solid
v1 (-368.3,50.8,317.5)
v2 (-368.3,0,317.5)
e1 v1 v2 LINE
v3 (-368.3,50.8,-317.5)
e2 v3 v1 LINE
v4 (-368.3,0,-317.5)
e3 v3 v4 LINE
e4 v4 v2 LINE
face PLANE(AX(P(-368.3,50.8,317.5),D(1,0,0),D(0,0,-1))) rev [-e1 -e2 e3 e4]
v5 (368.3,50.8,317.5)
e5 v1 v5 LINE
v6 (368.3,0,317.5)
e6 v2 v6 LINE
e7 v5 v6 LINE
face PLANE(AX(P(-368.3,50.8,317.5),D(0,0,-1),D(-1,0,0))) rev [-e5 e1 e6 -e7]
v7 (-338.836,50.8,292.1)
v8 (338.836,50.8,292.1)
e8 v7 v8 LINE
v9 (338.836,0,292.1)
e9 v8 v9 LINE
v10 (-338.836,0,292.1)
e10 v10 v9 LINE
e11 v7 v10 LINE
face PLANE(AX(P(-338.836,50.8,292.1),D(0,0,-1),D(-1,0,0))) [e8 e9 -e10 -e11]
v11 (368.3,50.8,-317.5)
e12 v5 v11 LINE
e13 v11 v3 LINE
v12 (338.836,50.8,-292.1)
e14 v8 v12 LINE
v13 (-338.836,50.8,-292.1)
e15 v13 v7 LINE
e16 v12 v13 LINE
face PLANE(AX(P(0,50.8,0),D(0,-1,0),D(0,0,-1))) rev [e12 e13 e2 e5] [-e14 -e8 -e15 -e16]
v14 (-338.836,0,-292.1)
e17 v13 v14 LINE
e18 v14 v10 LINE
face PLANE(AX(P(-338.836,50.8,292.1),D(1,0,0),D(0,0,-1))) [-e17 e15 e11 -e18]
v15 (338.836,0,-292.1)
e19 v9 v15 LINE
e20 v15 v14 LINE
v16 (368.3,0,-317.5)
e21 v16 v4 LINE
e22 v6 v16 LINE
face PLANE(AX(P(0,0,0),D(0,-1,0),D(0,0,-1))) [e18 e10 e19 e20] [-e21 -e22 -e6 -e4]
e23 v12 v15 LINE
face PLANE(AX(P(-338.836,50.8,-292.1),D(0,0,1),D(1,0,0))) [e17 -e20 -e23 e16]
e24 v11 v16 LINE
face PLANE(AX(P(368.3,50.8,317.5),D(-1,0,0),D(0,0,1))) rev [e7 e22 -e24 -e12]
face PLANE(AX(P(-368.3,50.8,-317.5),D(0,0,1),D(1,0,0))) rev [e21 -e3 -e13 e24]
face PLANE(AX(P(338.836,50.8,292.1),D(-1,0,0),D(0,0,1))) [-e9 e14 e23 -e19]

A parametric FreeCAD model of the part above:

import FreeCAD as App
import Part
import Sketcher

V = App.Vector
Q = App.Units.Quantity

doc = App.newDocument("Part")
body = doc.addObject("PartDesign::Body", "Body")

# Sketch on XZ plane
sketch1 = body.newObject("Sketcher::SketchObject", "Sketch")
sketch1.AttachmentSupport = (doc.getObject("XZ_Plane"), [""])
sketch1.MapMode = "FlatFace"
sketch1.addGeometry([
    Part.LineSegment(V(-368.3, -317.5, 0), V(-368.3, 317.5, 0)),  # 0
    Part.LineSegment(V(-368.3, 317.5, 0), V(368.3, 317.5, 0)),  # 1
    Part.LineSegment(V(368.3, 317.5, 0), V(368.3, -317.5, 0)),  # 2
    Part.LineSegment(V(368.3, -317.5, 0), V(-368.3, -317.5, 0)),  # 3
    Part.LineSegment(V(338.836, 292.1, 0), V(-338.836, 292.1, 0)),  # 4
    Part.LineSegment(V(-338.836, 292.1, 0), V(-338.836, -292.1, 0)),  # 5
    Part.LineSegment(V(-338.836, -292.1, 0), V(338.836, -292.1, 0)),  # 6
    Part.LineSegment(V(338.836, -292.1, 0), V(338.836, 292.1, 0)),  # 7
], False)
sketch1.addConstraint([
    Sketcher.Constraint("Coincident", 0, 2, 1, 1),
    Sketcher.Constraint("Coincident", 1, 2, 2, 1),
    Sketcher.Constraint("Coincident", 2, 2, 3, 1),
    Sketcher.Constraint("Coincident", 3, 2, 0, 1),
    Sketcher.Constraint("Coincident", 4, 2, 5, 1),
    Sketcher.Constraint("Coincident", 5, 2, 6, 1),
    Sketcher.Constraint("Coincident", 6, 2, 7, 1),
    Sketcher.Constraint("Coincident", 7, 2, 4, 1),
    Sketcher.Constraint("Vertical", 0),
    Sketcher.Constraint("Horizontal", 1),
    Sketcher.Constraint("Vertical", 2),
    Sketcher.Constraint("Horizontal", 3),
    Sketcher.Constraint("Horizontal", 4),
    Sketcher.Constraint("Vertical", 5),
    Sketcher.Constraint("Horizontal", 6),
    Sketcher.Constraint("Vertical", 7),
    Sketcher.Constraint("Symmetric", 0, 2, 2, 2, -1, 1),
    Sketcher.Constraint("Symmetric", 4, 2, 6, 2, -1, 1),
    Sketcher.Constraint("DistanceX", 1, 1, 1, 2, Q("29 in")),
    Sketcher.Constraint("DistanceY", 0, 1, 0, 2, Q("25 in")),
    Sketcher.Constraint("DistanceY", 5, 2, 5, 1, Q("23 in")),
    Sketcher.Constraint("DistanceX", 4, 2, 4, 1, Q("26.68 in")),
])
pad1 = body.newObject("PartDesign::Pad", "Pad")
pad1.Profile = sketch1
pad1.Length = Q("2 in")
pad1.Reversed = True

doc.recompute()
